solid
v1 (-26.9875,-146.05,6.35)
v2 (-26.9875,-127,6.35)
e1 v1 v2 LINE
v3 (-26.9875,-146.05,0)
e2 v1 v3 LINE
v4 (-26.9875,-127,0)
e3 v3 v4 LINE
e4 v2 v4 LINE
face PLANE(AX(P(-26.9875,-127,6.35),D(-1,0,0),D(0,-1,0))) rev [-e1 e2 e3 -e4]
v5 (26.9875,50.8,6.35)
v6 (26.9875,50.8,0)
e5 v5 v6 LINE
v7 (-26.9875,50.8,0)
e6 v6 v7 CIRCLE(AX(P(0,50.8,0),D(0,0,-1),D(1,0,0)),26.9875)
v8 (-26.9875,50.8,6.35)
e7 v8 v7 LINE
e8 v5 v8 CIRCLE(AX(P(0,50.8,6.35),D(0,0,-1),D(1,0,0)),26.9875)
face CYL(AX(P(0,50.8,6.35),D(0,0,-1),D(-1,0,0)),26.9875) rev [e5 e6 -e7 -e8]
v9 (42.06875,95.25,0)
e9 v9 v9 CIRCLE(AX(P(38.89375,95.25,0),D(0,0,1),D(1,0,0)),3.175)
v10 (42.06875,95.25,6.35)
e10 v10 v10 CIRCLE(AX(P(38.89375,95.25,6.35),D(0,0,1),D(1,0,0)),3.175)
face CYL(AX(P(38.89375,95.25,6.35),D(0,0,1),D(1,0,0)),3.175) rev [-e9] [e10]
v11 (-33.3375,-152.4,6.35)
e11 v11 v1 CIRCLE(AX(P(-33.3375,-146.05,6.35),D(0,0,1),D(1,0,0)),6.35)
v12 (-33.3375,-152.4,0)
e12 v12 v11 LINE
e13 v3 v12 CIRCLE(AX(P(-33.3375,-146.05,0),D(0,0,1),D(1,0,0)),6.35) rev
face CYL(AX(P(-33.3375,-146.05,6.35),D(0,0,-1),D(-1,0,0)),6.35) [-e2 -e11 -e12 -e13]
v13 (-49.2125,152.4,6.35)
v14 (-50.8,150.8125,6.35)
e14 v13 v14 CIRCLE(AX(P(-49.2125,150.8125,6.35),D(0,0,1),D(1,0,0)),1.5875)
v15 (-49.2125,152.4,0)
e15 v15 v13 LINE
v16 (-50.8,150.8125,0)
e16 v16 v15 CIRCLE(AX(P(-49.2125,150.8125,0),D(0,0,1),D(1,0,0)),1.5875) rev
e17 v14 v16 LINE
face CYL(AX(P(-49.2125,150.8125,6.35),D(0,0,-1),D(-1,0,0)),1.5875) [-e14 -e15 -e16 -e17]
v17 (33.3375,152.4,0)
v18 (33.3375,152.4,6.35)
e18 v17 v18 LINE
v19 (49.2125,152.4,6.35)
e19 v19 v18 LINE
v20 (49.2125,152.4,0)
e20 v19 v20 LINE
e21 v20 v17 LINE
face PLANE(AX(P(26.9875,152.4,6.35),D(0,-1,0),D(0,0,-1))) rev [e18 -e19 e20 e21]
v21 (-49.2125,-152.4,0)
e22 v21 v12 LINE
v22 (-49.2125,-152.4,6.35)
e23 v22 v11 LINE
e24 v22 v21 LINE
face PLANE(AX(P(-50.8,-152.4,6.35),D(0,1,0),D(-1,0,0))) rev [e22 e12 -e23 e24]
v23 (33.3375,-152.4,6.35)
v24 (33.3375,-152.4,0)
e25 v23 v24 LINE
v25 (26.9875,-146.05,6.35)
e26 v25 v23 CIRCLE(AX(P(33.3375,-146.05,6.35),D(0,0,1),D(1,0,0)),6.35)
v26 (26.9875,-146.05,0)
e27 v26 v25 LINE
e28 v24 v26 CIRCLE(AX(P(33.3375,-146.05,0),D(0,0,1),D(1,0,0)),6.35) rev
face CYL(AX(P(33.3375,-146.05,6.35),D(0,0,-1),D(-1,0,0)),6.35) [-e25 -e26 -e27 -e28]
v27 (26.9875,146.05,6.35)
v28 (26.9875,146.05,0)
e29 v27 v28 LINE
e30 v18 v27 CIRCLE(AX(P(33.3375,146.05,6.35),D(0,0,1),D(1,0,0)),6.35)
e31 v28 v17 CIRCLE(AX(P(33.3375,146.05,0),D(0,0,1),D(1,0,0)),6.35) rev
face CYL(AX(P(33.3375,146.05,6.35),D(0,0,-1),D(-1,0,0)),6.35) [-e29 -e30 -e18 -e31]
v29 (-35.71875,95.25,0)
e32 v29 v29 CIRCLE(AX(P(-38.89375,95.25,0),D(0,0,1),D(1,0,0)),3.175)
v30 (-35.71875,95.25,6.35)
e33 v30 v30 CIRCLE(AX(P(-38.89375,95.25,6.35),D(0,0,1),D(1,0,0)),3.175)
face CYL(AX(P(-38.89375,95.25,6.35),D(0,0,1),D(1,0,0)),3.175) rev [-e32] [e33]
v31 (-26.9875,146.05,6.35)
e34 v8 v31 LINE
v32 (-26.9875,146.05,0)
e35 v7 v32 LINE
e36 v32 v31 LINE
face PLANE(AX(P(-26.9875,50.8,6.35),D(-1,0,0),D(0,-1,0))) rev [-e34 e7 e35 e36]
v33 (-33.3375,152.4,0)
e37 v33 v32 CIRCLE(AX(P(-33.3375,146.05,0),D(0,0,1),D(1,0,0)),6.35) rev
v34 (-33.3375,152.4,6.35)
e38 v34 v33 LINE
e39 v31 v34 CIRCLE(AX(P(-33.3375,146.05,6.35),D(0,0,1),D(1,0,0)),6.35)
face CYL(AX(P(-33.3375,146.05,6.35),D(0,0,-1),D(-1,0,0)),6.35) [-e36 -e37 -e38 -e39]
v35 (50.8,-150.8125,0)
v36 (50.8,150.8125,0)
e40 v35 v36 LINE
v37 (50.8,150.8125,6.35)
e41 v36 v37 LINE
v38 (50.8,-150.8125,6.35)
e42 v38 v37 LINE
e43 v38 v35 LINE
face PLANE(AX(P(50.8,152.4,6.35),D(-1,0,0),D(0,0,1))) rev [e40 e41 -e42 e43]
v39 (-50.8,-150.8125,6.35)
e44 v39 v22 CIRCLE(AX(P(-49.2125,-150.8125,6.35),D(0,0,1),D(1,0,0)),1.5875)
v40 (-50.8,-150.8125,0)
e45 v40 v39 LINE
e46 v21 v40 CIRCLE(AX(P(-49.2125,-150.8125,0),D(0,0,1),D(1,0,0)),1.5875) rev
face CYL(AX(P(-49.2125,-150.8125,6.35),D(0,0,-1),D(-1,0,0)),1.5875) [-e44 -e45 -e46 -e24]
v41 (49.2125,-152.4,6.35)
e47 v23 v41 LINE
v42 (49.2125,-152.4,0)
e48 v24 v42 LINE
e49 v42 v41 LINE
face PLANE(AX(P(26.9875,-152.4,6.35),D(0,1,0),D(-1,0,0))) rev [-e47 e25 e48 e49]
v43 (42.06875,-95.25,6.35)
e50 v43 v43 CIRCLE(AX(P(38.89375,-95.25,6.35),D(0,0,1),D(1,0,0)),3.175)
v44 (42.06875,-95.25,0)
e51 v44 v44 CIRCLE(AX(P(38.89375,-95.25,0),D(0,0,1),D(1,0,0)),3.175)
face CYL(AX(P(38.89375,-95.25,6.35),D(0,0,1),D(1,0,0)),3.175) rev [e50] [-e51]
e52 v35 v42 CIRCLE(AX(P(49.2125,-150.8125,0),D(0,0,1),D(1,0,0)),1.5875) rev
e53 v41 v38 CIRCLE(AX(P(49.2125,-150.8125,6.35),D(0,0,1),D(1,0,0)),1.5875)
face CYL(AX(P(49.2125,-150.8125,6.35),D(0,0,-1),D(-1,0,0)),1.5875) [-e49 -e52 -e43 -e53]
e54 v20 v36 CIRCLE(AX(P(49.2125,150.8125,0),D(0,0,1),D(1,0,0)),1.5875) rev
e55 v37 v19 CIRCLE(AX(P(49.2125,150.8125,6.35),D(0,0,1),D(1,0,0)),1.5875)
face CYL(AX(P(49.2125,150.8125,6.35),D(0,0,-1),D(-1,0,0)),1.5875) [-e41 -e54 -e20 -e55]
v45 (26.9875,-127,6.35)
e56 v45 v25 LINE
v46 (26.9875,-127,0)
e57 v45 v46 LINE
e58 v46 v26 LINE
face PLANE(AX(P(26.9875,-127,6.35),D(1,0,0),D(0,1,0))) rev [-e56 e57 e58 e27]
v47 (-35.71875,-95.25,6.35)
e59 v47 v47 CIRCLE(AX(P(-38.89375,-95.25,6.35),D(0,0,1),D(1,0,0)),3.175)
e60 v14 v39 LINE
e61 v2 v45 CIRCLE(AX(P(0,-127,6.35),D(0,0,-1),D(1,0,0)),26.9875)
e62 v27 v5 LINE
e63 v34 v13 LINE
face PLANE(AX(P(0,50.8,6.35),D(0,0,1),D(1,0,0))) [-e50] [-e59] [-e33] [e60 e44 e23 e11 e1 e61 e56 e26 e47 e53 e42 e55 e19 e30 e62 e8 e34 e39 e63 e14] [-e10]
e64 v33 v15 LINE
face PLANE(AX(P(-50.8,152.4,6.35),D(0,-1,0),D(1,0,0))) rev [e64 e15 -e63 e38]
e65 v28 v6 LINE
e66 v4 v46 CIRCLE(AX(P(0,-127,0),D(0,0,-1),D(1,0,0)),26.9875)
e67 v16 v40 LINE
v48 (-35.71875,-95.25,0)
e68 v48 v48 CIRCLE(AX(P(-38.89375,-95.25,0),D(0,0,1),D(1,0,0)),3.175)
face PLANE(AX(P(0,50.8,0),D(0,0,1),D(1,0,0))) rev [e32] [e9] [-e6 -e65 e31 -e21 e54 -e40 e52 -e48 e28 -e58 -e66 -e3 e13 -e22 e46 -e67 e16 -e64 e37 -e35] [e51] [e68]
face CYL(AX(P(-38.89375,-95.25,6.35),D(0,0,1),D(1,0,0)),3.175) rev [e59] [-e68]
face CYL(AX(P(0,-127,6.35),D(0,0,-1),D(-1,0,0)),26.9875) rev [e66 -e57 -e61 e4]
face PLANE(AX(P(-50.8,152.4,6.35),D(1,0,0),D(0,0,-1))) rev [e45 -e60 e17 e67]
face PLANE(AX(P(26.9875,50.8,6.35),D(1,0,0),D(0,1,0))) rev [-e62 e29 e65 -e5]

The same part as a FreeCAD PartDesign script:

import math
import FreeCAD as App
import Part
import Sketcher
from FreeCAD import Vector
Q = App.Units.Quantity


def edges_at(feature, points):
    """Names of the edges that pass closest to the given points."""
    edges = feature.Shape.Edges
    near = lambda p: min(range(len(edges)), key=lambda i: edges[i].distToShape(Part.Vertex(*p))[0])
    return sorted({f"Edge{near(p) + 1}" for p in points})

doc = App.newDocument("Part")
params = doc.addObject("Spreadsheet::Sheet", "Params")
for row, (alias, value) in enumerate([
    ("sketch1_height", "4 in"),
    ("sketch1_height2", "12 in"),
    ("sketch1_height3", "1 in"),
    ("sketch1_radius", "1.0625 in"),
    ("pad1_length", "0.25 in"),
    ("sketch2_diameter", "0.25 in"),
    ("hole_diameter", "0.25 in"),
    ("hole_depth", "0.25 in"),
    ("fillet_radius", "0.25 in"),
    ("fillet2_radius", "0.0625 in"),
], start=1):
    params.set(f"A{row}", alias)
    params.set(f"B{row}", "=" + value)
    params.setAlias(f"B{row}", alias)

body = doc.addObject("PartDesign::Body", "Body")

# Sketch on XY plane
sketch1 = body.newObject("Sketcher::SketchObject", "Sketch")
sketch1.AttachmentSupport = (doc.getObject("XY_Plane"), [""])
sketch1.MapMode = "FlatFace"
sketch1.addGeometry(Part.LineSegment(Vector(-27, 51, 0), Vector(-27, 152, 0)), False)
sketch1.addGeometry(Part.LineSegment(Vector(-27, 152, 0), Vector(-51, 152, 0)), False)
sketch1.addGeometry(Part.LineSegment(Vector(-51, 152, 0), Vector(-51, -152, 0)), False)
sketch1.addGeometry(Part.LineSegment(Vector(-51, -152, 0), Vector(-27, -152, 0)), False)
sketch1.addGeometry(Part.LineSegment(Vector(-27, -152, 0), Vector(-27, -127, 0)), False)
sketch1.addGeometry(Part.ArcOfCircle(Part.Circle(Vector(0, -127, 0), Vector(0, 0, 1), 27), math.radians(0), math.radians(180)), False)
sketch1.addGeometry(Part.LineSegment(Vector(27, -127, 0), Vector(27, -152, 0)), False)
sketch1.addGeometry(Part.LineSegment(Vector(27, -152, 0), Vector(51, -152, 0)), False)
sketch1.addGeometry(Part.LineSegment(Vector(51, -152, 0), Vector(51, 152, 0)), False)
sketch1.addGeometry(Part.LineSegment(Vector(51, 152, 0), Vector(27, 152, 0)), False)
sketch1.addGeometry(Part.LineSegment(Vector(27, 152, 0), Vector(27, 51, 0)), False)
sketch1.addGeometry(Part.ArcOfCircle(Part.Circle(Vector(0, 51, 0), Vector(0, 0, 1), 27), math.radians(180), math.radians(360)), False)
sketch1.addConstraint(Sketcher.Constraint("Coincident", 0, 2, 1, 1))
sketch1.addConstraint(Sketcher.Constraint("Coincident", 1, 2, 2, 1))
sketch1.addConstraint(Sketcher.Constraint("Coincident", 2, 2, 3, 1))
sketch1.addConstraint(Sketcher.Constraint("Coincident", 3, 2, 4, 1))
sketch1.addConstraint(Sketcher.Constraint("Tangent", 4, 2, 5, 2))
sketch1.addConstraint(Sketcher.Constraint("Tangent", 5, 1, 6, 1))
sketch1.addConstraint(Sketcher.Constraint("Coincident", 6, 2, 7, 1))
sketch1.addConstraint(Sketcher.Constraint("Coincident", 7, 2, 8, 1))
sketch1.addConstraint(Sketcher.Constraint("Coincident", 8, 2, 9, 1))
sketch1.addConstraint(Sketcher.Constraint("Coincident", 9, 2, 10, 1))
sketch1.addConstraint(Sketcher.Constraint("Tangent", 10, 2, 11, 2))
sketch1.addConstraint(Sketcher.Constraint("Tangent", 11, 1, 0, 1))
sketch1.addConstraint(Sketcher.Constraint("Vertical", 0))
sketch1.addConstraint(Sketcher.Constraint("Horizontal", 1))
sketch1.addConstraint(Sketcher.Constraint("Vertical", 2))
sketch1.addConstraint(Sketcher.Constraint("Horizontal", 3))
sketch1.addConstraint(Sketcher.Constraint("Vertical", 4))
sketch1.addConstraint(Sketcher.Constraint("Vertical", 6))
sketch1.addConstraint(Sketcher.Constraint("Horizontal", 7))
sketch1.addConstraint(Sketcher.Constraint("Vertical", 8))
sketch1.addConstraint(Sketcher.Constraint("Horizontal", 9))
sketch1.addConstraint(Sketcher.Constraint("Vertical", 10))
sketch1.addConstraint(Sketcher.Constraint("Equal", 5, 11))
sketch1.addConstraint(Sketcher.Constraint("Symmetric", 0, 2, 6, 2, -1, 1))
sketch1.addConstraint(Sketcher.Constraint("Symmetric", 2, 2, 8, 2, -1, 1))
sketch1.addConstraint(Sketcher.Constraint("Symmetric", 3, 2, 6, 2, -2))
sketch1.addConstraint(Sketcher.Constraint("DistanceY", 0, 1, 0, 2, Q("4 in")))
sketch1.addConstraint(Sketcher.Constraint("DistanceY", 2, 2, 2, 1, Q("12 in")))
sketch1.addConstraint(Sketcher.Constraint("DistanceY", 4, 1, 4, 2, Q("1 in")))
sketch1.addConstraint(Sketcher.Constraint("DistanceX", 1, 2, -1, 1, Q("2 in")))
sketch1.addConstraint(Sketcher.Constraint("Radius", 5, Q("1.0625 in")))
sketch1.setExpression("Constraints[26]", "Params.sketch1_height")
sketch1.setExpression("Constraints[27]", "Params.sketch1_height2")
sketch1.setExpression("Constraints[28]", "Params.sketch1_height3")
sketch1.setExpression("Constraints[30]", "Params.sketch1_radius")
pad1 = body.newObject("PartDesign::Pad", "Pad")
pad1.Profile = sketch1
pad1.setExpression("Length", "Params.pad1_length")

# Sketch on XY plane
sketch2 = body.newObject("Sketcher::SketchObject", "Sketch001")
sketch2.AttachmentSupport = (doc.getObject("XY_Plane"), [""])
sketch2.MapMode = "FlatFace"
sketch2.AttachmentOffset = App.Placement(Vector(0, 0, 0.25 * 25.4), App.Rotation())
sketch2.addGeometry(Part.Circle(Vector(-38.9, 95.2, 0), Vector(0, 0, 1), 3.2), False)
sketch2.addGeometry(Part.Circle(Vector(38.9, 95.2, 0), Vector(0, 0, 1), 3.2), False)
sketch2.addGeometry(Part.Circle(Vector(38.9, -95.2, 0), Vector(0, 0, 1), 3.2), False)
sketch2.addGeometry(Part.Circle(Vector(-38.9, -95.2, 0), Vector(0, 0, 1), 3.2), False)
sketch2.addConstraint(Sketcher.Constraint("Equal", 0, 1))
sketch2.addConstraint(Sketcher.Constraint("Equal", 1, 2))
sketch2.addConstraint(Sketcher.Constraint("Equal", 2, 3))
sketch2.addConstraint(Sketcher.Constraint("Symmetric", 0, 3, 2, 3, -1, 1))
sketch2.addConstraint(Sketcher.Constraint("Symmetric", 1, 3, 3, 3, -1, 1))
sketch2.addConstraint(Sketcher.Constraint("Symmetric", 0, 3, 1, 3, -2))
sketch2.addConstraint(Sketcher.Constraint("Diameter", 0, Q("0.25 in")))
sketch2.addConstraint(Sketcher.Constraint("DistanceY", 2, 3, 1, 3, Q("7.5 in")))
sketch2.addConstraint(Sketcher.Constraint("DistanceX", 0, 3, -1, 1, Q("1.53125 in")))
sketch2.setExpression("Constraints[6]", "Params.sketch2_diameter")
doc.recompute()
hole = body.newObject("PartDesign::Hole", "Hole")
hole.Profile = sketch2
hole.ThreadType = "None"
hole.setExpression("Diameter", "Params.hole_diameter")
hole.DepthType = "Dimension"
hole.setExpression("Depth", "Params.hole_depth")
hole.DrillPoint = "Flat"
doc.recompute()

fillet = body.newObject("PartDesign::Fillet", "Fillet")
fillet.Base = (hole, edges_at(hole, [
    (26.988, -152.4, 3.175),
    (-26.988, -152.4, 3.175),
    (-26.988, 152.4, 3.175),
    (26.988, 152.4, 3.175),
]))
fillet.setExpression("Radius", "Params.fillet_radius")
doc.recompute()

fillet2 = body.newObject("PartDesign::Fillet", "Fillet001")
fillet2.Base = (fillet, edges_at(fillet, [
    (-50.8, -152.4, 3.175),
    (-50.8, 152.4, 3.175),
    (50.8, 152.4, 3.175),
    (50.8, -152.4, 3.175),
]))
fillet2.setExpression("Radius", "Params.fillet2_radius")

doc.recompute()
